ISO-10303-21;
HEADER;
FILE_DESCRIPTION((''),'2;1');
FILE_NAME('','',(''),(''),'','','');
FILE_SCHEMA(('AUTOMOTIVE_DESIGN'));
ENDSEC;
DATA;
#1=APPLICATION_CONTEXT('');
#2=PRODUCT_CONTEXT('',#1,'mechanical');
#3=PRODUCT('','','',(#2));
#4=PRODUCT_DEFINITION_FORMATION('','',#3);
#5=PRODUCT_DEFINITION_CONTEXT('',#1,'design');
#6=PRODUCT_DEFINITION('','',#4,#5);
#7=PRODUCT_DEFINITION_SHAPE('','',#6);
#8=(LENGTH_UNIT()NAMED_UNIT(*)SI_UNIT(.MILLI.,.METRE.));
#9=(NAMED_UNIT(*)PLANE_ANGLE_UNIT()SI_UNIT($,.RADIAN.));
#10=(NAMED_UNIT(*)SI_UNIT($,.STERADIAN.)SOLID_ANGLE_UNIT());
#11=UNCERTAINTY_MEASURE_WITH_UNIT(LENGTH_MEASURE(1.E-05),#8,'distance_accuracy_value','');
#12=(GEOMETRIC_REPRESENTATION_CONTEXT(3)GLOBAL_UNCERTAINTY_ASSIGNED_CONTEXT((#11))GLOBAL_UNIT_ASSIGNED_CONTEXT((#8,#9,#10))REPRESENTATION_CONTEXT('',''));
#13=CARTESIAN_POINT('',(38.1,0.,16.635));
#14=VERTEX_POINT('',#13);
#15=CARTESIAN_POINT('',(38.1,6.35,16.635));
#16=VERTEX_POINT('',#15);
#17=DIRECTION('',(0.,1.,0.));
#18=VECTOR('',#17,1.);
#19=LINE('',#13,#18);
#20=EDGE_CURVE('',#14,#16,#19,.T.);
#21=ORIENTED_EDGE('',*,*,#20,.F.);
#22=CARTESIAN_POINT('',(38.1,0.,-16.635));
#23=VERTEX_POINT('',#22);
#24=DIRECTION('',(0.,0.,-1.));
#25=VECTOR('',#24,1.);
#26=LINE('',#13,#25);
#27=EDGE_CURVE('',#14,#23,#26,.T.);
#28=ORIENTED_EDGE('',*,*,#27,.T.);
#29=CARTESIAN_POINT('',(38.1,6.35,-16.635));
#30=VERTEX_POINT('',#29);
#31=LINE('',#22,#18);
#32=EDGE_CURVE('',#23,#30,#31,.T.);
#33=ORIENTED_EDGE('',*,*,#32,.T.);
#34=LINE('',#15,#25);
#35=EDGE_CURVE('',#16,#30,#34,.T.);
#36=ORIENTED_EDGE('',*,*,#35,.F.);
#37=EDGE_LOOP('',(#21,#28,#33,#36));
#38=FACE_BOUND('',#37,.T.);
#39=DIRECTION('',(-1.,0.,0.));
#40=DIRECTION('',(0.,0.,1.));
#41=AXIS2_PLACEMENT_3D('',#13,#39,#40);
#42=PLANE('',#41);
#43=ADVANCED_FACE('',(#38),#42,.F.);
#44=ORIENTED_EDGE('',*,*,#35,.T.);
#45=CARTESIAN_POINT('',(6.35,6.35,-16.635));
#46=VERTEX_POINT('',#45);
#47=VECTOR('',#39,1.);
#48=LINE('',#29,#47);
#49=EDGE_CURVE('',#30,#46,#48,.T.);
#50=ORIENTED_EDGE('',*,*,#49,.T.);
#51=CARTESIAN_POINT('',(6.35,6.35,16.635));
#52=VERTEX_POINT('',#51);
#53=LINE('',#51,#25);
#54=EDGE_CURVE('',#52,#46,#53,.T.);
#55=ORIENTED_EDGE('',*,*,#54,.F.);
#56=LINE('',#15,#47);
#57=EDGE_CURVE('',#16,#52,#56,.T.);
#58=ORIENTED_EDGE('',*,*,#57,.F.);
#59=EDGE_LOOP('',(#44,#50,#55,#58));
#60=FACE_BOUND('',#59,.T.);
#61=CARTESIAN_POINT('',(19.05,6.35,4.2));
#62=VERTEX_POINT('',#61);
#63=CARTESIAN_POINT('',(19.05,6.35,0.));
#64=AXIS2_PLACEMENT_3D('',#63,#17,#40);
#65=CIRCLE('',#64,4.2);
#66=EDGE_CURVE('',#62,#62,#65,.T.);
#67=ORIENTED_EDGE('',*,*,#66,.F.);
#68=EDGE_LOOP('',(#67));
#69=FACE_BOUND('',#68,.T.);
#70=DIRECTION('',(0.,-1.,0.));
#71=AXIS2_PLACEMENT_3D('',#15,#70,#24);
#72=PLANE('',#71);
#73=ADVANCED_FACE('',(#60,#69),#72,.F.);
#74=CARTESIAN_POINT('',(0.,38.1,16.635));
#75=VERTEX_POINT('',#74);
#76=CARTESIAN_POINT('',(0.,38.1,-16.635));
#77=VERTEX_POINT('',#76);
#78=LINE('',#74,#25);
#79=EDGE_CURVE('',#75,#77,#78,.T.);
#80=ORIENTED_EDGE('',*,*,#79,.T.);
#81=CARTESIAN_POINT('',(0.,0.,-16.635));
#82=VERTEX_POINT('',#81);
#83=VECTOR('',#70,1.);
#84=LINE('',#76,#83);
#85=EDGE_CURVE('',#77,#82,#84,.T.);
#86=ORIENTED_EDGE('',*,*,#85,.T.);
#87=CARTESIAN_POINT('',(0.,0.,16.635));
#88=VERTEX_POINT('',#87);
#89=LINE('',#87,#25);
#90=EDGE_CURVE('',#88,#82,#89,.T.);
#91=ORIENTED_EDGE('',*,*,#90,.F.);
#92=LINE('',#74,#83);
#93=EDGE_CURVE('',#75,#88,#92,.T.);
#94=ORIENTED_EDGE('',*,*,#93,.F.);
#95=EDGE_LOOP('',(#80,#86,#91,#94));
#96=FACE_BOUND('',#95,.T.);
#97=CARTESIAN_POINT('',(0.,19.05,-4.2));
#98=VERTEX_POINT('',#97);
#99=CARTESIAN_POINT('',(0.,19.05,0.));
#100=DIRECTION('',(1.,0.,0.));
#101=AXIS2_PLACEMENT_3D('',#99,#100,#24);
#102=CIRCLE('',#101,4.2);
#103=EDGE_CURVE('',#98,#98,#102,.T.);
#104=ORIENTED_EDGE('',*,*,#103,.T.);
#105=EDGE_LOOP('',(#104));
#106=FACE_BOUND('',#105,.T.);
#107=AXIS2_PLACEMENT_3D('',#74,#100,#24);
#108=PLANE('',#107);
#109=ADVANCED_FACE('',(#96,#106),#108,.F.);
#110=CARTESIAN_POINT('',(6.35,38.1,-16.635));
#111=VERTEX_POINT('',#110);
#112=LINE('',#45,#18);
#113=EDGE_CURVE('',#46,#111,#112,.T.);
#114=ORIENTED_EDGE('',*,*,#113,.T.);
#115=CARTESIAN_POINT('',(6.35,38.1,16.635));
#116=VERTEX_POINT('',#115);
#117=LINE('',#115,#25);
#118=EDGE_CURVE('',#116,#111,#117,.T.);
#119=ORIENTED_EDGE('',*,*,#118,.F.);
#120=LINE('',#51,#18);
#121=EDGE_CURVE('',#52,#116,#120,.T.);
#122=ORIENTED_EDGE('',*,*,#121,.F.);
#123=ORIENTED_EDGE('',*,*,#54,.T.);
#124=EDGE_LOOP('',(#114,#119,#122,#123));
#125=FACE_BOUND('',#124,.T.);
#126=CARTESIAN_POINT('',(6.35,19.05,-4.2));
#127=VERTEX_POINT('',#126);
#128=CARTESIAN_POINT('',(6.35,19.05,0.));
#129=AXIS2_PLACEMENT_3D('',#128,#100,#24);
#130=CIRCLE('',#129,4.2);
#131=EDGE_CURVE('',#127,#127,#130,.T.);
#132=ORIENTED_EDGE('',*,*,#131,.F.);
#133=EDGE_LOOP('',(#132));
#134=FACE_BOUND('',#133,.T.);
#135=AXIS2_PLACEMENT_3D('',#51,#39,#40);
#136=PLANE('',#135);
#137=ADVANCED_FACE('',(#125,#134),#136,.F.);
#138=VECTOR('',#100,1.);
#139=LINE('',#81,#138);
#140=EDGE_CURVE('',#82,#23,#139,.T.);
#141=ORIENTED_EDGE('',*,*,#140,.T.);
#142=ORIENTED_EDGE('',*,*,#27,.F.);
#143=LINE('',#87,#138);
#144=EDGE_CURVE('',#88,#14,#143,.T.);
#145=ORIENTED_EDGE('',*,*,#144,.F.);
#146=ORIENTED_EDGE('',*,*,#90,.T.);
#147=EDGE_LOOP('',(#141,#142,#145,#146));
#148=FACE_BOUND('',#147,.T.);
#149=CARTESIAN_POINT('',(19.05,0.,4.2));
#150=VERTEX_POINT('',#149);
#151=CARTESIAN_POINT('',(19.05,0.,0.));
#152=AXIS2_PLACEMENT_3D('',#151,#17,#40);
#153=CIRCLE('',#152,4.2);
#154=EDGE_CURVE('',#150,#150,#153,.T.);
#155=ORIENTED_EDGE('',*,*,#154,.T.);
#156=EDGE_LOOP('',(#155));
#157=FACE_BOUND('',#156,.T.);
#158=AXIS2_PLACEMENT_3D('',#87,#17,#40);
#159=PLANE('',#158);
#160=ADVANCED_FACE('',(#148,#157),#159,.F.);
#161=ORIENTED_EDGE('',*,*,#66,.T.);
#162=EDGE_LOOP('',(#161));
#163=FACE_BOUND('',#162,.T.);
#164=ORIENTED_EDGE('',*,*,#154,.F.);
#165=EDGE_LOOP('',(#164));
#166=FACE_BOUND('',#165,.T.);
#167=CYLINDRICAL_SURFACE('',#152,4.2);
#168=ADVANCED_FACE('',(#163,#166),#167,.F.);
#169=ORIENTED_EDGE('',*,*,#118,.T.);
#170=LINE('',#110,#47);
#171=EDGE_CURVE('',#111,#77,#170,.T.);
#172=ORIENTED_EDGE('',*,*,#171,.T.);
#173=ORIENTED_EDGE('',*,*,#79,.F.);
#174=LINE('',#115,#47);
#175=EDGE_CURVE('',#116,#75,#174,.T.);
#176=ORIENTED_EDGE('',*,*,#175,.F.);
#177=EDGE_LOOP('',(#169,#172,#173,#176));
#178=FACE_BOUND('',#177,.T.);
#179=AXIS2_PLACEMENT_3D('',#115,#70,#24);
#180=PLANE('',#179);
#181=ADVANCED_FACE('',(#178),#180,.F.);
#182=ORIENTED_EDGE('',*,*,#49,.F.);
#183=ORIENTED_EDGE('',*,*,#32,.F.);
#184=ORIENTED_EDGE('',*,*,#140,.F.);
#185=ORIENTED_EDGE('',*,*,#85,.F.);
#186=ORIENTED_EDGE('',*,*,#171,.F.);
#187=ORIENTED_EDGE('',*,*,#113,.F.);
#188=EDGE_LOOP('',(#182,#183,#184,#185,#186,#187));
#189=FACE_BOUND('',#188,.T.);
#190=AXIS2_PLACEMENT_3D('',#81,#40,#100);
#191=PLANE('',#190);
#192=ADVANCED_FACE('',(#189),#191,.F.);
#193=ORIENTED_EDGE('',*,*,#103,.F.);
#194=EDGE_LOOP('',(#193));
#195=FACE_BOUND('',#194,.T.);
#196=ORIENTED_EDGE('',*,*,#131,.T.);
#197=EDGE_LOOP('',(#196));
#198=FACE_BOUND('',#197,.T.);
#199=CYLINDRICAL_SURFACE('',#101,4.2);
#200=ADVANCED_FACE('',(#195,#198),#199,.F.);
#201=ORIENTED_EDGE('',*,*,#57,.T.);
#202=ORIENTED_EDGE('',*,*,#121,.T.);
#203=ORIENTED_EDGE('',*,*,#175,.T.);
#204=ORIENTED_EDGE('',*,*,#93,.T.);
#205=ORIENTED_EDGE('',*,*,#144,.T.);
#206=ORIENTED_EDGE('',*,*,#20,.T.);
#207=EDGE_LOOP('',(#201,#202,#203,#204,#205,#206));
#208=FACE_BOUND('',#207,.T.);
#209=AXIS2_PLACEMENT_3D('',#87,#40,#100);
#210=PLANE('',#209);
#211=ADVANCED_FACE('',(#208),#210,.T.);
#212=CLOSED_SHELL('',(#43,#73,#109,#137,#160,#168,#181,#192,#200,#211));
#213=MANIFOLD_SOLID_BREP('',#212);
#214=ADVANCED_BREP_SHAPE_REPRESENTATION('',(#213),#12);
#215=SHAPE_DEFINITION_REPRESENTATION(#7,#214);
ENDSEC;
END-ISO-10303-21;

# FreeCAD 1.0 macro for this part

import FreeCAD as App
import Part
import Sketcher
from FreeCAD import Vector
Q = App.Units.Quantity


def add_polygon(sketch, points):
    """Adds a closed chain of lines whose ends are joined by coincident constraints."""
    first, n = sketch.GeometryCount, len(points)
    for a, b in zip(points, points[1:] + points[:1]):
        sketch.addGeometry(Part.LineSegment(App.Vector(*a, 0), App.Vector(*b, 0)), False)
    for i in range(n):
        sketch.addConstraint(Sketcher.Constraint("Coincident", first + i, 2, first + (i + 1) % n, 1))

doc = App.newDocument("Part")
params = doc.addObject("Spreadsheet::Sheet", "Params")
for row, (alias, value) in enumerate([
    ("sketch1_width", "1.5 in"),
    ("sketch1_width2", "1.25 in"),
    ("pad1_length", "33.27 mm"),
    ("pocket1_length", "0.25 in"),
    ("pocket2_length", "0.25 in"),
], start=1):
    params.set(f"A{row}", alias)
    params.set(f"B{row}", "=" + value)
    params.setAlias(f"B{row}", alias)

body = doc.addObject("PartDesign::Body", "Body")

sketch1 = body.newObject("Sketcher::SketchObject", "Sketch")
sketch1.AttachmentSupport = (doc.getObject("XY_Plane"), [""])
sketch1.MapMode = "FlatFace"
sketch1.AttachmentOffset = App.Placement(Vector(0, 0, -16.635), App.Rotation())
add_polygon(sketch1, [(0, 0), (38, 0), (38, 6), (6, 6), (6, 38), (0, 38)])
sketch1.addConstraint(Sketcher.Constraint("Horizontal", 0))
sketch1.addConstraint(Sketcher.Constraint("Vertical", 1))
sketch1.addConstraint(Sketcher.Constraint("Horizontal", 2))
sketch1.addConstraint(Sketcher.Constraint("Vertical", 3))
sketch1.addConstraint(Sketcher.Constraint("Horizontal", 4))
sketch1.addConstraint(Sketcher.Constraint("Vertical", 5))
sketch1.addConstraint(Sketcher.Constraint("Coincident", 5, 2, -1, 1))
sketch1.addConstraint(Sketcher.Constraint("Equal", 4, 1))
sketch1.addConstraint(Sketcher.Constraint("Equal", 2, 3))
sketch1.addConstraint(Sketcher.Constraint("DistanceX", 0, 1, 0, 2, Q("1.5 in")))
sketch1.addConstraint(Sketcher.Constraint("DistanceX", 2, 2, 2, 1, Q("1.25 in")))
sketch1.setExpression("Constraints[15]", "Params.sketch1_width")
sketch1.setExpression("Constraints[16]", "Params.sketch1_width2")
pad1 = body.newObject("PartDesign::Pad", "Pad")
pad1.Profile = sketch1
pad1.setExpression("Length", "Params.pad1_length")

sketch2 = body.newObject("Sketcher::SketchObject", "Sketch001")
sketch2.AttachmentSupport = (doc.getObject("XZ_Plane"), [""])
sketch2.MapMode = "FlatFace"
sketch2.AttachmentOffset = App.Placement(Vector(0, 0, -0.25 * 25.4), App.Rotation())
sketch2.addGeometry(Part.Circle(Vector(19.1, 0, 0), Vector(0, 0, 1), 4.2), False)
sketch2.addConstraint(Sketcher.Constraint("PointOnObject", 0, 3, -1))
sketch2.addConstraint(Sketcher.Constraint("Diameter", 0, 8.4))
sketch2.addConstraint(Sketcher.Constraint("DistanceX", -1, 1, 0, 3, Q("0.75 in")))
pocket1 = body.newObject("PartDesign::Pocket", "Pocket")
pocket1.Profile = sketch2
pocket1.setExpression("Length", "Params.pocket1_length")
pocket1.Reversed = True

sketch3 = body.newObject("Sketcher::SketchObject", "Sketch002")
sketch3.AttachmentSupport = (doc.getObject("YZ_Plane"), [""])
sketch3.MapMode = "FlatFace"
sketch3.AttachmentOffset = App.Placement(Vector(0, 0, 0.25 * 25.4), App.Rotation())
sketch3.addGeometry(Part.Circle(Vector(19.1, 0, 0), Vector(0, 0, 1), 4.2), False)
sketch3.addConstraint(Sketcher.Constraint("PointOnObject", 0, 3, -1))
sketch3.addConstraint(Sketcher.Constraint("Diameter", 0, 8.4))
sketch3.addConstraint(Sketcher.Constraint("DistanceX", -1, 1, 0, 3, Q("0.75 in")))
pocket2 = body.newObject("PartDesign::Pocket", "Pocket001")
pocket2.Profile = sketch3
pocket2.setExpression("Length", "Params.pocket2_length")

doc.recompute()
